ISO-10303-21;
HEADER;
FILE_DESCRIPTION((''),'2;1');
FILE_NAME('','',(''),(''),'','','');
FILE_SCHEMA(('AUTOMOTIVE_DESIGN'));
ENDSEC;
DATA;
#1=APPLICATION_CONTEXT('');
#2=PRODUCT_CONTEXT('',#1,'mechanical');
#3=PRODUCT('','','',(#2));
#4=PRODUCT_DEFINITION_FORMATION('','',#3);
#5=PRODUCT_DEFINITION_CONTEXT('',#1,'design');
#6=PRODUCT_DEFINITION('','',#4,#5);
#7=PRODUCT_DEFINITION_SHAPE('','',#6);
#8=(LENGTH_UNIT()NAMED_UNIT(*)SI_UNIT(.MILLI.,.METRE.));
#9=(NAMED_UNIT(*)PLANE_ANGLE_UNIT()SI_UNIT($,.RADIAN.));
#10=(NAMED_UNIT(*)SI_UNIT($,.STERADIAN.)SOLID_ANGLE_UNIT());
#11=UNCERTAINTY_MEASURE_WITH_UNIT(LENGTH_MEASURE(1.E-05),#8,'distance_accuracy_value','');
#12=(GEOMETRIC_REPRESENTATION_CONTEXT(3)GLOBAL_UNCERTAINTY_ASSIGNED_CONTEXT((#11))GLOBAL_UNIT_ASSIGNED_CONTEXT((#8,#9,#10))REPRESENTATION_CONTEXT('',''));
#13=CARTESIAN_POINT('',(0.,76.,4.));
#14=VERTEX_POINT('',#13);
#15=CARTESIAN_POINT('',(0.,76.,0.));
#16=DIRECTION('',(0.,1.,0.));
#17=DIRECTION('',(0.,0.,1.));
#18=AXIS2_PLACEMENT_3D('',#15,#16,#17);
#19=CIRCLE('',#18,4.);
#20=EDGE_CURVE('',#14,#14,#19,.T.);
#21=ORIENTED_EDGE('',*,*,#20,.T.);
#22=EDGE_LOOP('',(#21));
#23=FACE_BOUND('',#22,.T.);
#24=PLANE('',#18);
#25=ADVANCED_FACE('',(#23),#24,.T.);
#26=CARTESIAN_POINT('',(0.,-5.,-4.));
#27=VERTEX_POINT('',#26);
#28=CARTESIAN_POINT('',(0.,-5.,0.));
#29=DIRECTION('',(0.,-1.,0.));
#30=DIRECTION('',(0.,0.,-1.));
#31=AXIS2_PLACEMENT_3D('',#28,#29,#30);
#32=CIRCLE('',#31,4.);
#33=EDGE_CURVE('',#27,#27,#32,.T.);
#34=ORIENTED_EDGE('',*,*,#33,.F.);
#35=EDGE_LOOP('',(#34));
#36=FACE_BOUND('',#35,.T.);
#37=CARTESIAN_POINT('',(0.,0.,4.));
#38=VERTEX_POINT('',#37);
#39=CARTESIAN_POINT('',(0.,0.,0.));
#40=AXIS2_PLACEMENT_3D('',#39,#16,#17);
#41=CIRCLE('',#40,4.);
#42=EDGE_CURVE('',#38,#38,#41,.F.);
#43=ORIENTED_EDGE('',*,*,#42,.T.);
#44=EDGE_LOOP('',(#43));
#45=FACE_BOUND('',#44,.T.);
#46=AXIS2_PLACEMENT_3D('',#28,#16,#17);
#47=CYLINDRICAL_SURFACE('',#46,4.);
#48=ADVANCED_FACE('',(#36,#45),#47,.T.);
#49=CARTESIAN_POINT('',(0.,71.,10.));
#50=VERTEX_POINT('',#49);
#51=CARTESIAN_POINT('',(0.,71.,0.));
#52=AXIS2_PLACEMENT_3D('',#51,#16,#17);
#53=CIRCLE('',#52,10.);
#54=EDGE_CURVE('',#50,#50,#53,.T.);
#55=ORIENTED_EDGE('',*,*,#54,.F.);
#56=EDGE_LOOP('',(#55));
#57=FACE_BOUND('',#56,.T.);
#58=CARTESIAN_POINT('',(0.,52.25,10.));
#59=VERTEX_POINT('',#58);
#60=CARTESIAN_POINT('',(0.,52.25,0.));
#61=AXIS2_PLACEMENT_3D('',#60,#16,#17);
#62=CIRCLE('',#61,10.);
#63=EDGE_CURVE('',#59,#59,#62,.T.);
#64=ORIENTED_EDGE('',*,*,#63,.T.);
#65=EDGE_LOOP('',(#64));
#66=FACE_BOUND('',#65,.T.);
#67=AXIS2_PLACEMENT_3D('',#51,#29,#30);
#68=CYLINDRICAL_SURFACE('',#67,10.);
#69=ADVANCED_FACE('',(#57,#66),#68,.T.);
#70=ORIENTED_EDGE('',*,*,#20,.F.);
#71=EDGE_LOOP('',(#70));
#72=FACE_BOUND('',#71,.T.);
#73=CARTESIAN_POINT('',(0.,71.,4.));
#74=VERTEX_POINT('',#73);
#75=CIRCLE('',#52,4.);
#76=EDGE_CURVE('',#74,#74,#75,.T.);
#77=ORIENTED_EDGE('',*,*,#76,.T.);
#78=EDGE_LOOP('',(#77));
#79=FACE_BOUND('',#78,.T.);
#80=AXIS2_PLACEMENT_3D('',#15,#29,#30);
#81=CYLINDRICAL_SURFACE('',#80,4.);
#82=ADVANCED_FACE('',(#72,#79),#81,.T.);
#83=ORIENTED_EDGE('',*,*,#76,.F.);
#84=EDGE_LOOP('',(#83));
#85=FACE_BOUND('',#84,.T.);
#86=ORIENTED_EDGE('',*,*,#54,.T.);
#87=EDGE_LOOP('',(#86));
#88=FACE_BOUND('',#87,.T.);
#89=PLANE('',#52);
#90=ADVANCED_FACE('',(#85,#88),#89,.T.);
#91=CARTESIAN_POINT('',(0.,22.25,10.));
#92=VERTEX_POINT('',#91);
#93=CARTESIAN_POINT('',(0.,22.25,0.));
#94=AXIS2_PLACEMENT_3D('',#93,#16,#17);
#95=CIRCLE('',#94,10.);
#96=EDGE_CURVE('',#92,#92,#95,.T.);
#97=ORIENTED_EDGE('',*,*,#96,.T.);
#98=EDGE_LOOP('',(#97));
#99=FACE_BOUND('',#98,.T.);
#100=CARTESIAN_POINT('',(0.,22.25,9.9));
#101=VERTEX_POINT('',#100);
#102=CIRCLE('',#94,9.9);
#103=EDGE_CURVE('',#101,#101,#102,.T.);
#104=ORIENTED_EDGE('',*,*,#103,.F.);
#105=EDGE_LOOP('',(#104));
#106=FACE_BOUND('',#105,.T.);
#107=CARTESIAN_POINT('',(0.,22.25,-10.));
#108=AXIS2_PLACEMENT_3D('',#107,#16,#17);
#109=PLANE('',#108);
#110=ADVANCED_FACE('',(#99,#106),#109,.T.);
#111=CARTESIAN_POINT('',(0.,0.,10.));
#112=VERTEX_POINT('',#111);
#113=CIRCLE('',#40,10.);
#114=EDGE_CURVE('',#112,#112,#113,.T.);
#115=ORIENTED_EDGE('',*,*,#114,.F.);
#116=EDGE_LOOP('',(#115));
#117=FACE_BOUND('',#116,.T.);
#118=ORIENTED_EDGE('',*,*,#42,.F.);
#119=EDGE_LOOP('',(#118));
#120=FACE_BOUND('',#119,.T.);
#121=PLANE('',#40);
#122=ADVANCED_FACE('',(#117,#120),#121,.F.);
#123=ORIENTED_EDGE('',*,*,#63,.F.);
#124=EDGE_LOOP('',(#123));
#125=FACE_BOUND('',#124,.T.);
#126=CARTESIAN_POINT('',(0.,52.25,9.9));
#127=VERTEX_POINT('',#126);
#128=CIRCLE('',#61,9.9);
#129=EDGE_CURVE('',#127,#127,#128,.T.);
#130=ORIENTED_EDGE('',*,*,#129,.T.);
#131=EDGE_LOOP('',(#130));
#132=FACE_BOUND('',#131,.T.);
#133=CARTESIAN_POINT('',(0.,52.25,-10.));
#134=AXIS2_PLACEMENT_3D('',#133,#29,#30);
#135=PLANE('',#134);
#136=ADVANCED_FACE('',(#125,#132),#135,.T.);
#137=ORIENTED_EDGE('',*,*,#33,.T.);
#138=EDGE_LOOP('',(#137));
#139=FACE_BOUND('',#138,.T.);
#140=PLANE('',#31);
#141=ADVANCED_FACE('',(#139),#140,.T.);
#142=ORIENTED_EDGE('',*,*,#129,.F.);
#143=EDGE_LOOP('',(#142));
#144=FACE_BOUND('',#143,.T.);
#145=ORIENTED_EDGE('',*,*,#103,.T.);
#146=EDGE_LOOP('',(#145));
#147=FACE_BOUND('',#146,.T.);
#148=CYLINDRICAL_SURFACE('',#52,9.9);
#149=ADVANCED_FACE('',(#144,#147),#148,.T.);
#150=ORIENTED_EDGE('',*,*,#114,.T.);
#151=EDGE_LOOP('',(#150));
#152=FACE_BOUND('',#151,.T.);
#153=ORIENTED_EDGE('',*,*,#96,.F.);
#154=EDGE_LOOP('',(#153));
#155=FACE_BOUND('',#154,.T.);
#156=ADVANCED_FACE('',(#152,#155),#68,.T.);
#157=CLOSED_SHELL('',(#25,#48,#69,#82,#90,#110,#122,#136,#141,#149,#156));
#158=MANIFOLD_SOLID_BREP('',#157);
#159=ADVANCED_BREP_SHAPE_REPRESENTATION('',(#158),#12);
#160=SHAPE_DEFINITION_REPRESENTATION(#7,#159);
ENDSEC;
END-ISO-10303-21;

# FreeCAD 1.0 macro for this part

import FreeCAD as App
import Part
import Sketcher
from FreeCAD import Vector
Q = App.Units.Quantity


def add_polygon(sketch, points):
    """Adds a closed chain of lines whose ends are joined by coincident constraints."""
    first, n = sketch.GeometryCount, len(points)
    for a, b in zip(points, points[1:] + points[:1]):
        sketch.addGeometry(Part.LineSegment(App.Vector(*a, 0), App.Vector(*b, 0)), False)
    for i in range(n):
        sketch.addConstraint(Sketcher.Constraint("Coincident", first + i, 2, first + (i + 1) % n, 1))

doc = App.newDocument("Part")
body = doc.addObject("PartDesign::Body", "Body")

# Sketch on XZ plane
sketch1 = doc.addObject("Sketcher::SketchObject", "Sketch")
body.addObject(sketch1)
sketch1.AttachmentSupport = (doc.XZ_Plane, [""])
sketch1.MapMode = "FlatFace"
sketch1.addGeometry(Part.Circle(Vector(0, 0, 0), Vector(0, 0, 1), 10), False)
sketch1.addConstraint([
    Sketcher.Constraint("Coincident", 0, 3, -1, 1),
    Sketcher.Constraint("Diameter", 0, Q("20 mm")),
])
pad1 = doc.addObject("PartDesign::Pad", "Pad")
body.addObject(pad1)
pad1.Profile = sketch1
pad1.Length = 71
pad1.Reversed = True

# Sketch on YZ plane
sketch2 = doc.addObject("Sketcher::SketchObject", "Sketch001")
body.addObject(sketch2)
sketch2.AttachmentSupport = (doc.YZ_Plane, [""])
sketch2.MapMode = "FlatFace"
add_polygon(sketch2, [(52.25, -9.9), (22.25, -9.9), (22.25, -10), (52.25, -10)])  # lines 0-3
sketch2.addConstraint([
    Sketcher.Constraint("Horizontal", 0),
    Sketcher.Constraint("Vertical", 1),
    Sketcher.Constraint("Horizontal", 2),
    Sketcher.Constraint("Vertical", 3),
    Sketcher.Constraint("DistanceX", 0, 2, 0, 1, Q("30 mm")),
    Sketcher.Constraint("DistanceY", 1, 2, 1, 1, Q("0.1 mm")),
    Sketcher.Constraint("DistanceY", 1, 2, -1, 1, Q("10 mm")),
    Sketcher.Constraint("DistanceX", -1, 1, 0, 2, Q("22.25 mm")),
])
groove = doc.addObject("PartDesign::Groove", "Groove")
body.addObject(groove)
groove.Profile = sketch2
groove.ReferenceAxis = (sketch2, ["H_Axis"])
groove.Angle = 360

# Sketch on XZ plane
sketch3 = doc.addObject("Sketcher::SketchObject", "Sketch002")
body.addObject(sketch3)
sketch3.AttachmentSupport = (doc.XZ_Plane, [""])
sketch3.MapMode = "FlatFace"
sketch3.addGeometry(Part.Circle(Vector(0, 0, 0), Vector(0, 0, 1), 4), False)
sketch3.addConstraint([
    Sketcher.Constraint("Coincident", 0, 3, -1, 1),
    Sketcher.Constraint("Diameter", 0, Q("8 mm")),
])
pad2 = doc.addObject("PartDesign::Pad", "Pad001")
body.addObject(pad2)
pad2.Profile = sketch3
pad2.Length = 5

# Sketch on XZ plane
sketch4 = doc.addObject("Sketcher::SketchObject", "Sketch003")
body.addObject(sketch4)
sketch4.AttachmentSupport = (doc.XZ_Plane, [""])
sketch4.MapMode = "FlatFace"
sketch4.AttachmentOffset = App.Placement(Vector(0, 0, -71), App.Rotation())
sketch4.addGeometry(Part.Circle(Vector(0, 0, 0), Vector(0, 0, 1), 4), False)
sketch4.addConstraint([
    Sketcher.Constraint("Coincident", 0, 3, -1, 1),
    Sketcher.Constraint("Diameter", 0, Q("8 mm")),
])
pad3 = doc.addObject("PartDesign::Pad", "Pad002")
body.addObject(pad3)
pad3.Profile = sketch4
pad3.Length = 5
pad3.Reversed = True

doc.recompute()
